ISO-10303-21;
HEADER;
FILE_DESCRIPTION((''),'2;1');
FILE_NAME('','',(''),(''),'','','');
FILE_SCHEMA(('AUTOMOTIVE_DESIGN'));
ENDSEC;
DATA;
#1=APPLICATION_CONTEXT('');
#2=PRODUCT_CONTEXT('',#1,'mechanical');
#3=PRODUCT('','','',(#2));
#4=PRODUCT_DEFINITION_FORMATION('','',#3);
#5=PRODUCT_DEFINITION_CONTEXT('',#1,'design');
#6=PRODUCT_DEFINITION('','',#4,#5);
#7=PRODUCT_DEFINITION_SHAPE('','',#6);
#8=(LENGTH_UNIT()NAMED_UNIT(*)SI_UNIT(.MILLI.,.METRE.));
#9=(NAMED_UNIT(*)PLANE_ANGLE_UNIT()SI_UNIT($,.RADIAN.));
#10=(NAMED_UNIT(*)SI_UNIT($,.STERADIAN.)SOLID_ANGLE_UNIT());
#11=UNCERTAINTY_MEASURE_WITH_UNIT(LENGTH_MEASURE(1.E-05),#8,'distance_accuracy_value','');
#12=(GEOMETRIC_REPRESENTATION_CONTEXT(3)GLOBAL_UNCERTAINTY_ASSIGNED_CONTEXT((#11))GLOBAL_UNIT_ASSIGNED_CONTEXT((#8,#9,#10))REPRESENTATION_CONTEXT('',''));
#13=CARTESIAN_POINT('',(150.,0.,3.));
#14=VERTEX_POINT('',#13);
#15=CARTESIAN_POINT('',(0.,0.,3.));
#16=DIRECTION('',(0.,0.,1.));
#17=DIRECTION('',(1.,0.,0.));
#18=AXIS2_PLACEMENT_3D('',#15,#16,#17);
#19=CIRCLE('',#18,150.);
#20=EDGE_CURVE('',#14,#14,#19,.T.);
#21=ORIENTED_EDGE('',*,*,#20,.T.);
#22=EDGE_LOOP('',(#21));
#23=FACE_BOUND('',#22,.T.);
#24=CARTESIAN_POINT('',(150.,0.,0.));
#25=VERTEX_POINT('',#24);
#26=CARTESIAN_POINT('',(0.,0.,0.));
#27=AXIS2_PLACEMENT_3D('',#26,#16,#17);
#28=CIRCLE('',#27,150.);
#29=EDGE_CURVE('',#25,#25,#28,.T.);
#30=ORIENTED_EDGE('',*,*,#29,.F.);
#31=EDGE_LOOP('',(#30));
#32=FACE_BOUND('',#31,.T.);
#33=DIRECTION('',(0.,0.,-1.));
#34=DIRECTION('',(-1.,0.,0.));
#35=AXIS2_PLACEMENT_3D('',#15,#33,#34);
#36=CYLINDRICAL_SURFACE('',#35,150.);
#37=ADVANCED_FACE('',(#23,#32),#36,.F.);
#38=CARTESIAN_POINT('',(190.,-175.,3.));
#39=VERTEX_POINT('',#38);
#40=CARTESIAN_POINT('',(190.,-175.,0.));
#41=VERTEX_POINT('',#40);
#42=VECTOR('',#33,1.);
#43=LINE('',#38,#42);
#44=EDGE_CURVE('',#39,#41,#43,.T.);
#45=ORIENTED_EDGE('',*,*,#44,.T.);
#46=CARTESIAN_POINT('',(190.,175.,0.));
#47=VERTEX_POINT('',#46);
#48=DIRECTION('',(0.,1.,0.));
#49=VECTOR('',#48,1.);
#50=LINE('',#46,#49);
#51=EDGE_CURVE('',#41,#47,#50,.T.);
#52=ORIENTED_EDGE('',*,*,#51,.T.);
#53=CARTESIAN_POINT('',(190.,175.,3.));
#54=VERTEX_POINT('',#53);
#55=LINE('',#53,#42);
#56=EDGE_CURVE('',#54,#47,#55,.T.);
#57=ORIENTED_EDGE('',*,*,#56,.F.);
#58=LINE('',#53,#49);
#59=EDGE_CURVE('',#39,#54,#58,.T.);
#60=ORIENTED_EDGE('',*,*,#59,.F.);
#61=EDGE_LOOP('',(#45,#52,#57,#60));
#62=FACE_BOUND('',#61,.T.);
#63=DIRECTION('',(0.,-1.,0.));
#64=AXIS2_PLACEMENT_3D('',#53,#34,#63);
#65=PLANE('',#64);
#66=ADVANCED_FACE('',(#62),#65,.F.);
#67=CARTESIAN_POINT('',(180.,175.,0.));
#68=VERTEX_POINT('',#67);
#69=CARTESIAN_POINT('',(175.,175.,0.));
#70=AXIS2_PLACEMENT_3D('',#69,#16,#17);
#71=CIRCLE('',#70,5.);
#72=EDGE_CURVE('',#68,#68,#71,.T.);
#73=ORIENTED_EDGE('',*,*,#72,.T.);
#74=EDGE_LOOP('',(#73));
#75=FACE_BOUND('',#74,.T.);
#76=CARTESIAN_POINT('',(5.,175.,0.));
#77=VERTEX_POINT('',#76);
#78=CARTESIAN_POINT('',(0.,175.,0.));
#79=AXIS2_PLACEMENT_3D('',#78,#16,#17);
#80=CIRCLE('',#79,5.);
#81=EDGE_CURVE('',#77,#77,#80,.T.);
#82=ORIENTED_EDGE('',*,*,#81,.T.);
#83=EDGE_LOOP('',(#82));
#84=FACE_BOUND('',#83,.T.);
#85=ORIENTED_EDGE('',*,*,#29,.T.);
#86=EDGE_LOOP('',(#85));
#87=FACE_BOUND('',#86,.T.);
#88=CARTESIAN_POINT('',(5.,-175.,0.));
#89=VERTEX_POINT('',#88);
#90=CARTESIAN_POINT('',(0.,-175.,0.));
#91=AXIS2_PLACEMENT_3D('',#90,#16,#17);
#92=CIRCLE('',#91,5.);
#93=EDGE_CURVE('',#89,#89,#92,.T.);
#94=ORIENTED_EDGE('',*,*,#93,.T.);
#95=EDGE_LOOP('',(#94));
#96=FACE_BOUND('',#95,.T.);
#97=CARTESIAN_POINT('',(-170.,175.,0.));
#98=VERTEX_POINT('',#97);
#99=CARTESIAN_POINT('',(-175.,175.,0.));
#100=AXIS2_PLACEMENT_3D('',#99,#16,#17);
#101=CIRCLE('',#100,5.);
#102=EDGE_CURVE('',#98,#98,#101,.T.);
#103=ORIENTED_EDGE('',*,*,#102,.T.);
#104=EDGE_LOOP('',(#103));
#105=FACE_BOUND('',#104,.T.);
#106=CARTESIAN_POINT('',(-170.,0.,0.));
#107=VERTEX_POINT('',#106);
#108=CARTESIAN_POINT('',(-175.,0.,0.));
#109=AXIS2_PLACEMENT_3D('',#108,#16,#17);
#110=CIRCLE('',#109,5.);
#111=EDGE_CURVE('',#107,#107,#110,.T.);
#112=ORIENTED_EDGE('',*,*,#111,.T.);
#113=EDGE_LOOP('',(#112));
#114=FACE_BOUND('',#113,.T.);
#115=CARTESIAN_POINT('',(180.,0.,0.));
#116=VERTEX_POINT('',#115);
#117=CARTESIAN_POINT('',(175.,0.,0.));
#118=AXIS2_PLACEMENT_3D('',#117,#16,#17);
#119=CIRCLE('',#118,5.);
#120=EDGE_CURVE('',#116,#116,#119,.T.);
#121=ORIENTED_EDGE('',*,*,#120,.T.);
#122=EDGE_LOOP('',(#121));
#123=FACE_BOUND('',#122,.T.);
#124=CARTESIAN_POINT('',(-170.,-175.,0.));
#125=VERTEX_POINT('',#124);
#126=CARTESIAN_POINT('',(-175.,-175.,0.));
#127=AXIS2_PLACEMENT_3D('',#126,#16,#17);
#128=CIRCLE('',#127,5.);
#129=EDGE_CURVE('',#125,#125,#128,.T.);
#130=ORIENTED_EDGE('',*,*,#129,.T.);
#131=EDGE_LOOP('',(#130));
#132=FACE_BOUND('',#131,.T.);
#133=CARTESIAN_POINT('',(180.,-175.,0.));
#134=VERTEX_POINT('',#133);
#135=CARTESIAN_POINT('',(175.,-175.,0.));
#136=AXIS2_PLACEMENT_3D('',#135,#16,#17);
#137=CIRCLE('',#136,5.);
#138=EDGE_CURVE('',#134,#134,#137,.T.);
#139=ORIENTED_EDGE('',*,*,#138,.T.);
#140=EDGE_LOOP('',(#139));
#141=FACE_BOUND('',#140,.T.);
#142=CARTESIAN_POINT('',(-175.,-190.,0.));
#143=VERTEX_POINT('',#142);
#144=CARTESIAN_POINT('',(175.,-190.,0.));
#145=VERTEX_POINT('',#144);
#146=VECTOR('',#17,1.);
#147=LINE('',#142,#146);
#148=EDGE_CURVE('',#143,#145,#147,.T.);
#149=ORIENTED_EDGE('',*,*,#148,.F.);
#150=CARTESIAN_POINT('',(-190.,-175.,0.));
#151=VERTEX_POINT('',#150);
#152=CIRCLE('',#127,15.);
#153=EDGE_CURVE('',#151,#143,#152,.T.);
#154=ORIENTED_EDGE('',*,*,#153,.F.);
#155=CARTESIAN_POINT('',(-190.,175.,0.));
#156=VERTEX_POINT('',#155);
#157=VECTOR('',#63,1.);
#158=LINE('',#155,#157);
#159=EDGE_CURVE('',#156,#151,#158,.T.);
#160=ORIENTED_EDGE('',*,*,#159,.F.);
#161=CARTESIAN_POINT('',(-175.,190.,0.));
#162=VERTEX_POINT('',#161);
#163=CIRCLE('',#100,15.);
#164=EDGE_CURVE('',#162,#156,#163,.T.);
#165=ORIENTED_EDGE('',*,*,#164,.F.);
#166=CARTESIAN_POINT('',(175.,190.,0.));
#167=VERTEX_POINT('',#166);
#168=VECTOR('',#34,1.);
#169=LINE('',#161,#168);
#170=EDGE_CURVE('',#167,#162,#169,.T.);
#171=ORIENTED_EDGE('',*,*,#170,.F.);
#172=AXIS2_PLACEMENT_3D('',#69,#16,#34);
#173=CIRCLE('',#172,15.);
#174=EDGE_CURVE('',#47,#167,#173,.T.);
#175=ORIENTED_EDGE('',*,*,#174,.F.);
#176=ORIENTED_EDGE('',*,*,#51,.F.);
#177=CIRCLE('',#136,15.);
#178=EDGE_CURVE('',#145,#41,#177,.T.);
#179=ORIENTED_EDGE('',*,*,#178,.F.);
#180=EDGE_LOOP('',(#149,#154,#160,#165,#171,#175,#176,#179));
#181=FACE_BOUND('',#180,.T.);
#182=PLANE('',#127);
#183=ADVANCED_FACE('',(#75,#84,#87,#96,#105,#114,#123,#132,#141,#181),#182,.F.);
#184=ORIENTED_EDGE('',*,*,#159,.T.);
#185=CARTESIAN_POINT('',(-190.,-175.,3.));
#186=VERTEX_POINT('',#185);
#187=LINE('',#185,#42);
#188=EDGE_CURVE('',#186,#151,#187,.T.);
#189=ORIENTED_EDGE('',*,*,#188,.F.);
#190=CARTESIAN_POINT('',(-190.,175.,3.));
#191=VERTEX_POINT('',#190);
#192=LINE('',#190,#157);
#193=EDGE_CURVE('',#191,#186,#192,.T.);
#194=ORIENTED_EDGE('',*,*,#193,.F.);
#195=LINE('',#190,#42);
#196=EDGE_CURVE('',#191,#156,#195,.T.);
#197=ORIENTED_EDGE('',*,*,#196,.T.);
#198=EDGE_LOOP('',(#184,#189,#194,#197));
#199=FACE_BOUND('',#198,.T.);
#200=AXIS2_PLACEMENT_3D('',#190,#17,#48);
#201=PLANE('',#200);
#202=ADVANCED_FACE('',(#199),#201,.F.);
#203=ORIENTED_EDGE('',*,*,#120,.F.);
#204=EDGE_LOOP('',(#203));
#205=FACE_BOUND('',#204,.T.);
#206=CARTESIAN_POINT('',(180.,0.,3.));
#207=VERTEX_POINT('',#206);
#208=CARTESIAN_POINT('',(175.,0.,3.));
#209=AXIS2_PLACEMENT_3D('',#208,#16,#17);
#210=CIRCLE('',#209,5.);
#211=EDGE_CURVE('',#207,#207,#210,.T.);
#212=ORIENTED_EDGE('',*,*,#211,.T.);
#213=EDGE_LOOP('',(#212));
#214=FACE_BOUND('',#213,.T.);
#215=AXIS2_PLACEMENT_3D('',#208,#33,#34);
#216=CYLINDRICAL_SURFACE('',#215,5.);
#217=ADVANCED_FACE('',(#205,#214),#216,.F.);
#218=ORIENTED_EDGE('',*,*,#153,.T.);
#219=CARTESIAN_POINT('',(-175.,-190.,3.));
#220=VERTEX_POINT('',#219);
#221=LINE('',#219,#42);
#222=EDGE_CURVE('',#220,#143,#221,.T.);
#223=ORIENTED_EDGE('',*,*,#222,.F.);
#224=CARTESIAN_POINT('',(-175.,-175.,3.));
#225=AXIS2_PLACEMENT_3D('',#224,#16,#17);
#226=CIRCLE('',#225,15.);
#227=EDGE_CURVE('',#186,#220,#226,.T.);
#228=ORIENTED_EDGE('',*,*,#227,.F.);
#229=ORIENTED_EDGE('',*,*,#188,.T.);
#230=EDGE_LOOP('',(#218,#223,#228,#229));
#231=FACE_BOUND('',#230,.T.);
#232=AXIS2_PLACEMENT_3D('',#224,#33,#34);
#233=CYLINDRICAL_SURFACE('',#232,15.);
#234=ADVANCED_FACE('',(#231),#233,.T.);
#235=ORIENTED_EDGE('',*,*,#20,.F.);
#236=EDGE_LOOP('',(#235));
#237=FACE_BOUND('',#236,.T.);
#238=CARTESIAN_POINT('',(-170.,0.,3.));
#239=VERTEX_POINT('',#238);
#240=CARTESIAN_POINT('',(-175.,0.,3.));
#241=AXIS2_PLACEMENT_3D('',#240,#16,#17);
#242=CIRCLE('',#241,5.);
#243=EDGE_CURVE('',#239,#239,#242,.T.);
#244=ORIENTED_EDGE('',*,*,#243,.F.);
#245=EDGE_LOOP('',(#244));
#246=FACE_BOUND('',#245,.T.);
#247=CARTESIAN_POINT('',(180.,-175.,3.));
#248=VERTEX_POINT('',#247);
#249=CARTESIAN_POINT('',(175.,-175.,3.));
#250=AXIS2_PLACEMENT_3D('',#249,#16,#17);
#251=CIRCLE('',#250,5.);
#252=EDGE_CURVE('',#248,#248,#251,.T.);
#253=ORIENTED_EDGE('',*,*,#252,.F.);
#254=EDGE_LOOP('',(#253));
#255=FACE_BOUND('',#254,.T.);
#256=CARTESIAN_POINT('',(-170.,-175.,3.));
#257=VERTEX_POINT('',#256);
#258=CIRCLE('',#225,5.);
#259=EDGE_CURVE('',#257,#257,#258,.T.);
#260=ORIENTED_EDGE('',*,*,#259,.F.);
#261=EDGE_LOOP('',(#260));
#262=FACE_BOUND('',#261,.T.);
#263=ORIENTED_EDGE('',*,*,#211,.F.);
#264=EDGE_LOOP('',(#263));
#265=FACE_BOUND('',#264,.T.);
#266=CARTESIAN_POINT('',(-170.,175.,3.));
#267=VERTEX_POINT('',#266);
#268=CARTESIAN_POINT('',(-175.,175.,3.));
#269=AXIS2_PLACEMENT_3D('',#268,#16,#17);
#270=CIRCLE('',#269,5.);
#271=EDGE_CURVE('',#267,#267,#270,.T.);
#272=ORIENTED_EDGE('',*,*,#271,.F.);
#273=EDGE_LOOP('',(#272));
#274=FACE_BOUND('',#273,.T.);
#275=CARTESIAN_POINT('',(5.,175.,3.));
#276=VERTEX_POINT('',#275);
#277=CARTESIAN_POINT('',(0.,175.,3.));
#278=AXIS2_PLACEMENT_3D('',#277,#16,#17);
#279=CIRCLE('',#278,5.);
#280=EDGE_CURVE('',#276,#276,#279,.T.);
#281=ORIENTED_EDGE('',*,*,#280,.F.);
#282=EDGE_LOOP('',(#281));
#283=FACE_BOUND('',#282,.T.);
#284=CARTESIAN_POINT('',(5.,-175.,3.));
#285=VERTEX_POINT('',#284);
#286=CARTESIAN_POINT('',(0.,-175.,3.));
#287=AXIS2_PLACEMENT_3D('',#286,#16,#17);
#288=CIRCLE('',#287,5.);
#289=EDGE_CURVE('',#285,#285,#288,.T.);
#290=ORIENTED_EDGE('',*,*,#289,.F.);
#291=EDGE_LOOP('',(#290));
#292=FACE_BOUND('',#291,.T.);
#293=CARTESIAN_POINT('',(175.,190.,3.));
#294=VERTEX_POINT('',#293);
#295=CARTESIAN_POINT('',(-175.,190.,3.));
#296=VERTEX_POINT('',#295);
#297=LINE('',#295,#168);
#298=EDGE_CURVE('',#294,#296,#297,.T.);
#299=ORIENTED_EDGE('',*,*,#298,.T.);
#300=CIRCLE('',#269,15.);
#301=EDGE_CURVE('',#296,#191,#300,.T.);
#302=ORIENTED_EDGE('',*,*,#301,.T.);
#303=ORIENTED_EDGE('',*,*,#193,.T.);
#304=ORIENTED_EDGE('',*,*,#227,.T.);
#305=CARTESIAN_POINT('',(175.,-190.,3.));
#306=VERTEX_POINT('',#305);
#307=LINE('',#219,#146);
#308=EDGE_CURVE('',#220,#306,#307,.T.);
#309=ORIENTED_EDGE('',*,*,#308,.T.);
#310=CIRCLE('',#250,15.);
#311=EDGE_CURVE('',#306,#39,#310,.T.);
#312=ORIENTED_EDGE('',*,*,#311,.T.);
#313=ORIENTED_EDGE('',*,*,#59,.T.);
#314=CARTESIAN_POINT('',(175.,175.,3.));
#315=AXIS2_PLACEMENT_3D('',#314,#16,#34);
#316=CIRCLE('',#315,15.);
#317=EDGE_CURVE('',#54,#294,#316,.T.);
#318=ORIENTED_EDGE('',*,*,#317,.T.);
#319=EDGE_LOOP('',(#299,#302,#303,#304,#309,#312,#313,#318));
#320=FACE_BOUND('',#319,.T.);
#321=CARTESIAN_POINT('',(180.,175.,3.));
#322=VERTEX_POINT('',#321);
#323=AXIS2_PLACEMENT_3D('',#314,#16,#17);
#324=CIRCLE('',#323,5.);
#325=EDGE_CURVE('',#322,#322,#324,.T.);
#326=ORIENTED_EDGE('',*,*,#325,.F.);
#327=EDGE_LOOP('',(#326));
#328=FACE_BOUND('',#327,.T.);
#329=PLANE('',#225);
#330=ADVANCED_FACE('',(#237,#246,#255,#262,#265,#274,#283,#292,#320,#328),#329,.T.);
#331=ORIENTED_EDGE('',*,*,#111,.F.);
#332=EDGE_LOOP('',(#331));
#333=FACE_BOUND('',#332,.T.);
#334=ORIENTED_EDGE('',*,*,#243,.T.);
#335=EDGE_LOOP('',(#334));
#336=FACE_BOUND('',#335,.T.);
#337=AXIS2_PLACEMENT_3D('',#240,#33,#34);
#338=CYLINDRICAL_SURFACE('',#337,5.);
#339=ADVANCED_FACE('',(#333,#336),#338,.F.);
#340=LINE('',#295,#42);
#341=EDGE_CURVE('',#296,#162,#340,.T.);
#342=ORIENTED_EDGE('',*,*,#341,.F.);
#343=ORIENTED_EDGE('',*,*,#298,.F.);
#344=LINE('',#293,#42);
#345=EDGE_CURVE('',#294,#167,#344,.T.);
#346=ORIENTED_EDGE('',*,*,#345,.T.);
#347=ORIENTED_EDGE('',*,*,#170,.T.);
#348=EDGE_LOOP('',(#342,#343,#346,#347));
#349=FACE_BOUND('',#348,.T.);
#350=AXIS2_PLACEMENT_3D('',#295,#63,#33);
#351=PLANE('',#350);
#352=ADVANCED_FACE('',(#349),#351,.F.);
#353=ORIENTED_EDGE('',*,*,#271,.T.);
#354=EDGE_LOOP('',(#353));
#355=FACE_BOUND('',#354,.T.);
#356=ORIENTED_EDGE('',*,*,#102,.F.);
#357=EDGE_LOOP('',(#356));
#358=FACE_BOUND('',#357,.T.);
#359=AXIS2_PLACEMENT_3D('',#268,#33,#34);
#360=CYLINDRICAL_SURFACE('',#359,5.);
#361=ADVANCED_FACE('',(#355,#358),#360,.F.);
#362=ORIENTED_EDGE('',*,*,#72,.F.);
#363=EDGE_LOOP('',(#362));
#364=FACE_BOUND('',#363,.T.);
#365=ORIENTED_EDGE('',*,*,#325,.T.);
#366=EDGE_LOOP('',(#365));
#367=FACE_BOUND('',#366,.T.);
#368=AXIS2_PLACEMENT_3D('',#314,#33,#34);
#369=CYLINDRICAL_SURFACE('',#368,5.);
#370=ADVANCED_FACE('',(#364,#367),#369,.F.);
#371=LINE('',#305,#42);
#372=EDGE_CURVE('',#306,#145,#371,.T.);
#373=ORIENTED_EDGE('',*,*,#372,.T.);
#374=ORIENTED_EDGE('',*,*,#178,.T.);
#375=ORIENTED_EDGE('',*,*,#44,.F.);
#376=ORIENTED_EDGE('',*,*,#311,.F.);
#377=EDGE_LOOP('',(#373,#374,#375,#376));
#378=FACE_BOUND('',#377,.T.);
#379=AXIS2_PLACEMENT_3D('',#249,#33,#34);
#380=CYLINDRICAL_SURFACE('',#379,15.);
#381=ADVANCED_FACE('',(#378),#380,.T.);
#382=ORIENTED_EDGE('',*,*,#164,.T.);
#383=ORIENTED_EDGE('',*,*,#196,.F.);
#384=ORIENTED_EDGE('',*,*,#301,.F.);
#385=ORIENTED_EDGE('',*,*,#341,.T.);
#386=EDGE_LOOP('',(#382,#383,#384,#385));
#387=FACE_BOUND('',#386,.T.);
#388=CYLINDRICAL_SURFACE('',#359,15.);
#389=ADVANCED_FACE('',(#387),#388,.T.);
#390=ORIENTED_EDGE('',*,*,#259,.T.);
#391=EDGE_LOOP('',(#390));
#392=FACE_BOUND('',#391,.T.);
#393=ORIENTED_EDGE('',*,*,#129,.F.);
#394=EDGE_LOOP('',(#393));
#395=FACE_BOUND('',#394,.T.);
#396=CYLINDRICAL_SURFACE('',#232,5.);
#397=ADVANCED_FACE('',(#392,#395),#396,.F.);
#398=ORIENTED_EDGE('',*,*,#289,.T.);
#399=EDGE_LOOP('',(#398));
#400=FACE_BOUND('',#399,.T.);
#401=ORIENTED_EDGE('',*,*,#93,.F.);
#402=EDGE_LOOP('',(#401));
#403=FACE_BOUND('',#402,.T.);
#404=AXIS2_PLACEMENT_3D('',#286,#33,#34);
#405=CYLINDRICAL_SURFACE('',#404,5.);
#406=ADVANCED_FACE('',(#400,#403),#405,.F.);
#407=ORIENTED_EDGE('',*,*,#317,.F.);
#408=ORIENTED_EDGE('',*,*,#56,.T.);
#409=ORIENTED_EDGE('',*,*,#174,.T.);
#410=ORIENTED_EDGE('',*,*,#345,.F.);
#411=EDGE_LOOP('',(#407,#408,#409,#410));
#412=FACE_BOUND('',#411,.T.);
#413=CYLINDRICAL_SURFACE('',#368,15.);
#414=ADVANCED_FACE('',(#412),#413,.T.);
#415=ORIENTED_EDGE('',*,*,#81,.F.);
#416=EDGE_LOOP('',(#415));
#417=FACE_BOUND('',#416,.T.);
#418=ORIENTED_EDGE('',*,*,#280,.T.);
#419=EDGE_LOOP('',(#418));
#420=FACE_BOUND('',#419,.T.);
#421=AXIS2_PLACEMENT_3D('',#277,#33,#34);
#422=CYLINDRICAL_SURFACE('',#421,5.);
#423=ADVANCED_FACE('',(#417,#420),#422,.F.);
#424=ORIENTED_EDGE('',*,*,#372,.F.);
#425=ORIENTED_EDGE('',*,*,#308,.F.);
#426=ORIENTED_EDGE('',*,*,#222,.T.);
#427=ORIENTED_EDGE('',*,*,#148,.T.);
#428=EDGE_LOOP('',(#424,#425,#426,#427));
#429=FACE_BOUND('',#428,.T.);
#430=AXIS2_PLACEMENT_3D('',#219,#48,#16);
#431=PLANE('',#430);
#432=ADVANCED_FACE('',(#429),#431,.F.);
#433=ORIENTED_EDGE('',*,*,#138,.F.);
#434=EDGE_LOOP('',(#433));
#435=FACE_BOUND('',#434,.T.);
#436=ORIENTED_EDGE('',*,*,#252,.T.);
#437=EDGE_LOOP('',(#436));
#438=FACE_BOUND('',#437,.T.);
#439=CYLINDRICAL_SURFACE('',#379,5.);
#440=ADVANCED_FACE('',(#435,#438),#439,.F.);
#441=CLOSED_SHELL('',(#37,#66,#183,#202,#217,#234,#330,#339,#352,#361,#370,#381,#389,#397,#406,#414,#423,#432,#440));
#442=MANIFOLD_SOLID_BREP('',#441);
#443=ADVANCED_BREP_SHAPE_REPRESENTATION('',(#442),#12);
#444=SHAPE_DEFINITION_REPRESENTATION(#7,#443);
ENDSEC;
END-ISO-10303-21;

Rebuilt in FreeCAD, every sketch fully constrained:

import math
import FreeCAD as App
import Part
import Sketcher
from FreeCAD import Vector
Q = App.Units.Quantity

doc = App.newDocument("Part")
body = doc.addObject("PartDesign::Body", "Body")

sketch1 = body.newObject("Sketcher::SketchObject", "Sketch")
sketch1.AttachmentSupport = (doc.getObject("XY_Plane"), [""])
sketch1.MapMode = "FlatFace"
sketch1.addGeometry(Part.LineSegment(Vector(175, 190, 0), Vector(-175, 190, 0)), False)
sketch1.addGeometry(Part.ArcOfCircle(Part.Circle(Vector(-175, 175, 0), Vector(0, 0, 1), 15), math.radians(90), math.radians(180)), False)
sketch1.addGeometry(Part.LineSegment(Vector(-190, 175, 0), Vector(-190, -175, 0)), False)
sketch1.addGeometry(Part.ArcOfCircle(Part.Circle(Vector(-175, -175, 0), Vector(0, 0, 1), 15), math.radians(180), math.radians(270)), False)
sketch1.addGeometry(Part.LineSegment(Vector(-175, -190, 0), Vector(175, -190, 0)), False)
sketch1.addGeometry(Part.ArcOfCircle(Part.Circle(Vector(175, -175, 0), Vector(0, 0, 1), 15), math.radians(-90), math.radians(0)), False)
sketch1.addGeometry(Part.LineSegment(Vector(190, -175, 0), Vector(190, 175, 0)), False)
sketch1.addGeometry(Part.ArcOfCircle(Part.Circle(Vector(175, 175, 0), Vector(0, 0, 1), 15), math.radians(0), math.radians(90)), False)
sketch1.addGeometry(Part.Circle(Vector(175, -175, 0), Vector(0, 0, 1), 5), False)
sketch1.addGeometry(Part.Circle(Vector(0, -175, 0), Vector(0, 0, 1), 5), False)
sketch1.addGeometry(Part.Circle(Vector(-175, -175, 0), Vector(0, 0, 1), 5), False)
sketch1.addGeometry(Part.Circle(Vector(175, 0, 0), Vector(0, 0, 1), 5), False)
sketch1.addGeometry(Part.Circle(Vector(175, 175, 0), Vector(0, 0, 1), 5), False)
sketch1.addGeometry(Part.Circle(Vector(0, 0, 0), Vector(0, 0, 1), 150), False)
sketch1.addGeometry(Part.Circle(Vector(-175, 0, 0), Vector(0, 0, 1), 5), False)
sketch1.addGeometry(Part.Circle(Vector(0, 175, 0), Vector(0, 0, 1), 5), False)
sketch1.addGeometry(Part.Circle(Vector(-175, 175, 0), Vector(0, 0, 1), 5), False)
sketch1.addConstraint(Sketcher.Constraint("Tangent", 0, 2, 1, 1))
sketch1.addConstraint(Sketcher.Constraint("Tangent", 1, 2, 2, 1))
sketch1.addConstraint(Sketcher.Constraint("Tangent", 2, 2, 3, 1))
sketch1.addConstraint(Sketcher.Constraint("Tangent", 3, 2, 4, 1))
sketch1.addConstraint(Sketcher.Constraint("Tangent", 4, 2, 5, 1))
sketch1.addConstraint(Sketcher.Constraint("Tangent", 5, 2, 6, 1))
sketch1.addConstraint(Sketcher.Constraint("Tangent", 6, 2, 7, 1))
sketch1.addConstraint(Sketcher.Constraint("Tangent", 7, 2, 0, 1))
sketch1.addConstraint(Sketcher.Constraint("Horizontal", 0))
sketch1.addConstraint(Sketcher.Constraint("Vertical", 2))
sketch1.addConstraint(Sketcher.Constraint("Horizontal", 4))
sketch1.addConstraint(Sketcher.Constraint("Vertical", 6))
sketch1.addConstraint(Sketcher.Constraint("Coincident", 13, 3, -1, 1))
sketch1.addConstraint(Sketcher.Constraint("Coincident", 8, 3, 5, 3))
sketch1.addConstraint(Sketcher.Constraint("Coincident", 10, 3, 3, 3))
sketch1.addConstraint(Sketcher.Constraint("Coincident", 12, 3, 7, 3))
sketch1.addConstraint(Sketcher.Constraint("Coincident", 16, 3, 1, 3))
sketch1.addConstraint(Sketcher.Constraint("Equal", 1, 3))
sketch1.addConstraint(Sketcher.Constraint("Equal", 3, 5))
sketch1.addConstraint(Sketcher.Constraint("Equal", 5, 7))
sketch1.addConstraint(Sketcher.Constraint("Equal", 8, 9))
sketch1.addConstraint(Sketcher.Constraint("Equal", 9, 10))
sketch1.addConstraint(Sketcher.Constraint("Equal", 10, 11))
sketch1.addConstraint(Sketcher.Constraint("Equal", 11, 12))
sketch1.addConstraint(Sketcher.Constraint("Equal", 12, 14))
sketch1.addConstraint(Sketcher.Constraint("Equal", 14, 15))
sketch1.addConstraint(Sketcher.Constraint("Equal", 15, 16))
sketch1.addConstraint(Sketcher.Constraint("Symmetric", 1, 3, 5, 3, -1, 1))
sketch1.addConstraint(Sketcher.Constraint("Symmetric", 11, 3, 14, 3, -1, 1))
sketch1.addConstraint(Sketcher.Constraint("Symmetric", 9, 3, 15, 3, -1, 1))
sketch1.addConstraint(Sketcher.Constraint("PointOnObject", 9, 3, -2))
sketch1.addConstraint(Sketcher.Constraint("PointOnObject", 11, 3, -1))
sketch1.addConstraint(Sketcher.Constraint("Horizontal", 8, 3, 9, 3))
sketch1.addConstraint(Sketcher.Constraint("Vertical", 8, 3, 11, 3))
sketch1.addConstraint(Sketcher.Constraint("Equal", 4, 2))
sketch1.addConstraint(Sketcher.Constraint("Diameter", 8, Q("10 mm")))
sketch1.addConstraint(Sketcher.Constraint("Diameter", 13, Q("300 mm")))
sketch1.addConstraint(Sketcher.Constraint("Radius", 1, Q("15 mm")))
sketch1.addConstraint(Sketcher.Constraint("DistanceX", 0, 2, 0, 1, Q("350 mm")))
pad1 = body.newObject("PartDesign::Pad", "Pad")
pad1.Profile = sketch1
pad1.Length = 3

doc.recompute()
